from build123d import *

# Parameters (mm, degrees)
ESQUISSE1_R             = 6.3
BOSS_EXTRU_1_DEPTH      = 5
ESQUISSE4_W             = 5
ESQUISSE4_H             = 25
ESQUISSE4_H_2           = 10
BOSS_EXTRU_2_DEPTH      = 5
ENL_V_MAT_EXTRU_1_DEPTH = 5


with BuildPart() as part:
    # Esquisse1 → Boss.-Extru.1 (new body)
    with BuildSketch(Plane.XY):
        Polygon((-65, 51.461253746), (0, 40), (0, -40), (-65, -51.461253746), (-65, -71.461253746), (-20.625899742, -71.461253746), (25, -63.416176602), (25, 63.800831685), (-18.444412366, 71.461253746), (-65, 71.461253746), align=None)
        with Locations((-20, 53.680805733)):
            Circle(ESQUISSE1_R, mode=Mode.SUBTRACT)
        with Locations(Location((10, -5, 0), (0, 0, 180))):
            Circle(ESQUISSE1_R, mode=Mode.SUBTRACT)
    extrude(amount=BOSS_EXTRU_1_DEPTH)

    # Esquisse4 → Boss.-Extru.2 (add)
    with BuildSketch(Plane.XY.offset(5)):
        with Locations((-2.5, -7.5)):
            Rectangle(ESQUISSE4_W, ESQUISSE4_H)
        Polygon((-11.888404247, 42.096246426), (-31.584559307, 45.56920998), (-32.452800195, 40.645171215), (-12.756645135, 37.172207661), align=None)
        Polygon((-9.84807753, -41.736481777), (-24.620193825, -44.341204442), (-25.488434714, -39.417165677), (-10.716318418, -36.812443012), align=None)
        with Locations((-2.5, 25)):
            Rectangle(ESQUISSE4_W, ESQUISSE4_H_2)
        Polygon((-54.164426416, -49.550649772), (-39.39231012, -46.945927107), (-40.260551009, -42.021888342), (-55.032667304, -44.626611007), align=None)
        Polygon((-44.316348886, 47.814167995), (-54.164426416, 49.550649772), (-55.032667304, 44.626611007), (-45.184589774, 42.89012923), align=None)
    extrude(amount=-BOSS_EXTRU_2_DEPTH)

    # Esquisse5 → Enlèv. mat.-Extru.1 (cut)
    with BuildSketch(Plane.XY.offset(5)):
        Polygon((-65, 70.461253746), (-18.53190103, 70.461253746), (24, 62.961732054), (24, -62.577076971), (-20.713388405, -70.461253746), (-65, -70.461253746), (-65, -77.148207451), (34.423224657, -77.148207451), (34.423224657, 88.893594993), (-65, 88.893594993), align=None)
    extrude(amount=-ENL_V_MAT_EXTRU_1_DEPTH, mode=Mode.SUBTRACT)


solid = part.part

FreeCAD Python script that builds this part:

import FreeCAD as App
import Part
import Sketcher
Q = App.Units.Quantity


def add_polygon(sketch, points):
    """Adds a closed chain of lines whose ends are joined by coincident constraints."""
    first, n = sketch.GeometryCount, len(points)
    for a, b in zip(points, points[1:] + points[:1]):
        sketch.addGeometry(Part.LineSegment(App.Vector(*a, 0), App.Vector(*b, 0)), False)
    for i in range(n):
        sketch.addConstraint(Sketcher.Constraint("Coincident", first + i, 2, first + (i + 1) % n, 1))

doc = App.newDocument("Part")
body = doc.addObject("PartDesign::Body", "Body")

sketch1 = body.newObject("Sketcher::SketchObject", "Sketch")
sketch1.AttachmentSupport = (doc.getObject("XY_Plane"), [""])
sketch1.MapMode = "FlatFace"
add_polygon(sketch1, [(-65, 51), (0, 40), (0, -40), (-65, -51), (-65, -71), (-21, -71), (25, -63), (25, 64), (-18, 71), (-65, 71)])
sketch1.addGeometry(Part.Circle(App.Vector(10, -5, 0), App.Vector(0, 0, 1), 6), False)
sketch1.addGeometry(Part.Circle(App.Vector(-20, 54, 0), App.Vector(0, 0, 1), 6), False)
sketch1.addConstraint([
    Sketcher.Constraint("Vertical", 1),
    Sketcher.Constraint("Vertical", 3),
    Sketcher.Constraint("Horizontal", 4),
    Sketcher.Constraint("Vertical", 6),
    Sketcher.Constraint("Horizontal", 8),
    Sketcher.Constraint("Vertical", 9),
    Sketcher.Constraint("Equal", 10, 11),
    Sketcher.Constraint("Symmetric", 0, 2, 1, 2, -1, 1),
    Sketcher.Constraint("Symmetric", 3, 2, 8, 2, -1),
    Sketcher.Constraint("Parallel", 2, 5),
    Sketcher.Constraint("Parallel", 0, 7),
    Sketcher.Constraint("Equal", 3, 9),
    Sketcher.Constraint("Diameter", 10, Q("12.6 mm")),
    Sketcher.Constraint("DistanceY", 1, 2, 1, 1, Q("80 mm")),
    Sketcher.Constraint("DistanceY", 3, 2, 3, 1, Q("20 mm")),
    Sketcher.Constraint("Angle", 0, Q("-10 deg")),
    Sketcher.Constraint("DistanceX", -1, 1, 10, 3, Q("10 mm")),
    Sketcher.Constraint("DistanceY", 10, 3, -1, 1, Q("5 mm")),
    Sketcher.Constraint("DistanceX", 11, 3, -1, 1, Q("20 mm")),
    Sketcher.Constraint("DistanceX", 2, 2, -1, 1, Q("65 mm")),
    Sketcher.Constraint("DistanceX", -1, 1, 5, 2, Q("25 mm")),
    Sketcher.Constraint("DistanceX", 4, 1, 4, 2, Q("44.3741 mm")),
    Sketcher.Constraint("DistanceY", 6, 1, 6, 2, Q("127.217008 mm")),
    Sketcher.Constraint("DistanceY", 2, 2, 11, 3, Q("105.142059 mm")),
])
pad1 = body.newObject("PartDesign::Pad", "Pad")
pad1.Profile = sketch1
pad1.Length = 5

sketch2 = body.newObject("Sketcher::SketchObject", "Sketch001")
sketch2.AttachmentSupport = (doc.getObject("XY_Plane"), [""])
sketch2.MapMode = "FlatFace"
sketch2.AttachmentOffset = App.Placement(App.Vector(0, 0, 5), App.Rotation())
add_polygon(sketch2, [(-5, 5), (-5, -20), (0, -20), (0, 5)])
add_polygon(sketch2, [(-11.9, 42.1), (-31.6, 45.6), (-32.5, 40.6), (-12.8, 37.2)])
add_polygon(sketch2, [(-24.6, -44.3), (-9.8, -41.7), (-10.7, -36.8), (-25.5, -39.4)])
add_polygon(sketch2, [(-5, 30), (-5, 20), (0, 20), (0, 30)])
add_polygon(sketch2, [(-54.2, -49.6), (-39.4, -46.9), (-40.3, -42), (-55, -44.6)])
add_polygon(sketch2, [(-44.3, 47.8), (-54.2, 49.6), (-55, 44.6), (-45.2, 42.9)])
sketch2.addConstraint([
    Sketcher.Constraint("Vertical", 0),
    Sketcher.Constraint("Horizontal", 1),
    Sketcher.Constraint("Vertical", 2),
    Sketcher.Constraint("Horizontal", 3),
    Sketcher.Constraint("Vertical", 12),
    Sketcher.Constraint("Horizontal", 13),
    Sketcher.Constraint("Vertical", 14),
    Sketcher.Constraint("Horizontal", 15),
    Sketcher.Constraint("Symmetric", 1, 2, 13, 2, -1, 1),
    Sketcher.Constraint("Symmetric", 19, 2, 20, 2, -1),
    Sketcher.Constraint("Symmetric", 18, 2, 21, 2, -1),
    Sketcher.Constraint("PointOnObject", 1, 2, -2),
    Sketcher.Constraint("Perpendicular", 4, 5),
    Sketcher.Constraint("Perpendicular", 5, 6),
    Sketcher.Constraint("Perpendicular", 6, 7),
    Sketcher.Constraint("Perpendicular", 8, 9),
    Sketcher.Constraint("Perpendicular", 9, 10),
    Sketcher.Constraint("Perpendicular", 10, 11),
    Sketcher.Constraint("Perpendicular", 11, 16),
    Sketcher.Constraint("Perpendicular", 16, 17),
    Sketcher.Constraint("Perpendicular", 17, 18),
    Sketcher.Constraint("Perpendicular", 18, 19),
    Sketcher.Constraint("Perpendicular", 7, 20),
    Sketcher.Constraint("Perpendicular", 20, 21),
    Sketcher.Constraint("Perpendicular", 21, 22),
    Sketcher.Constraint("Perpendicular", 22, 23),
    Sketcher.Constraint("Vertical", 3, 2, 12, 2),
    Sketcher.Constraint("Equal", 7, 9),
    Sketcher.Constraint("Equal", 10, 16),
    Sketcher.Constraint("Equal", 11, 17),
    Sketcher.Constraint("DistanceX", 1, 1, 1, 2, Q("5 mm")),
    Sketcher.Constraint("DistanceY", 0, 2, 0, 1, Q("25 mm")),
    Sketcher.Constraint("DistanceY", 12, 2, 12, 1, Q("10 mm")),
    Sketcher.Constraint("Angle", 4, Q("170 deg")),
    Sketcher.Constraint("Distance", 4, Q("20 mm")),
    Sketcher.Constraint("Distance", 5, Q("5 mm")),
    Sketcher.Constraint("Distance", 8, Q("15 mm")),
    Sketcher.Constraint("Distance", 20, Q("10 mm")),
    Sketcher.Constraint("DistanceY", 0, 2, -1, 1, Q("20 mm")),
    Sketcher.Constraint("DistanceX", 5, 2, -1, 1, Q("32.4528 mm")),
    Sketcher.Constraint("DistanceY", 21, 2, 4, 2, Q("0.942599 mm")),
    Sketcher.Constraint("DistanceY", -1, 1, 4, 2, Q("45.56921 mm")),
    Sketcher.Constraint("DistanceY", 8, 2, -1, 1, Q("41.736482 mm")),
    Sketcher.Constraint("DistanceX", 9, 2, -1, 1, Q("10.716318 mm")),
    Sketcher.Constraint("DistanceX", 16, 2, -1, 1, Q("39.39231 mm")),
])
pad2 = body.newObject("PartDesign::Pad", "Pad001")
pad2.Profile = sketch2
pad2.Length = 5
pad2.Reversed = True

sketch3 = body.newObject("Sketcher::SketchObject", "Sketch002")
sketch3.AttachmentSupport = (doc.getObject("XY_Plane"), [""])
sketch3.MapMode = "FlatFace"
sketch3.AttachmentOffset = App.Placement(App.Vector(0, 0, 5), App.Rotation())
add_polygon(sketch3, [(-65, 70), (-19, 70), (24, 63), (24, -63), (-21, -70), (-65, -70), (-65, -77), (34, -77), (34, 89), (-65, 89)])
sketch3.addConstraint([
    Sketcher.Constraint("Horizontal", 0),
    Sketcher.Constraint("Vertical", 2),
    Sketcher.Constraint("Horizontal", 4),
    Sketcher.Constraint("Vertical", 5),
    Sketcher.Constraint("Horizontal", 6),
    Sketcher.Constraint("Vertical", 7),
    Sketcher.Constraint("Horizontal", 8),
    Sketcher.Constraint("Vertical", 9),
    Sketcher.Constraint("Symmetric", 4, 2, 9, 2, -1),
    Sketcher.Constraint("Angle", 1, Q("-10 deg")),
    Sketcher.Constraint("Angle", 3, Q("-170 deg")),
    Sketcher.Constraint("DistanceX", -1, 1, 1, 2, Q("24 mm")),
    Sketcher.Constraint("DistanceX", 4, 2, -1, 1, Q("65 mm")),
    Sketcher.Constraint("DistanceX", 0, 1, 0, 2, Q("46.468099 mm")),
    Sketcher.Constraint("DistanceX", 4, 2, 4, 1, Q("44.286612 mm")),
    Sketcher.Constraint("DistanceY", 2, 2, 2, 1, Q("125.538809 mm")),
    Sketcher.Constraint("DistanceY", 9, 2, 9, 1, Q("18.432341 mm")),
    Sketcher.Constraint("DistanceX", 6, 1, 6, 2, Q("99.423225 mm")),
    Sketcher.Constraint("DistanceY", 5, 2, 5, 1, Q("6.686954 mm")),
])
pocket1 = body.newObject("PartDesign::Pocket", "Pocket")
pocket1.Profile = sketch3
pocket1.Length = 5

doc.recompute()
